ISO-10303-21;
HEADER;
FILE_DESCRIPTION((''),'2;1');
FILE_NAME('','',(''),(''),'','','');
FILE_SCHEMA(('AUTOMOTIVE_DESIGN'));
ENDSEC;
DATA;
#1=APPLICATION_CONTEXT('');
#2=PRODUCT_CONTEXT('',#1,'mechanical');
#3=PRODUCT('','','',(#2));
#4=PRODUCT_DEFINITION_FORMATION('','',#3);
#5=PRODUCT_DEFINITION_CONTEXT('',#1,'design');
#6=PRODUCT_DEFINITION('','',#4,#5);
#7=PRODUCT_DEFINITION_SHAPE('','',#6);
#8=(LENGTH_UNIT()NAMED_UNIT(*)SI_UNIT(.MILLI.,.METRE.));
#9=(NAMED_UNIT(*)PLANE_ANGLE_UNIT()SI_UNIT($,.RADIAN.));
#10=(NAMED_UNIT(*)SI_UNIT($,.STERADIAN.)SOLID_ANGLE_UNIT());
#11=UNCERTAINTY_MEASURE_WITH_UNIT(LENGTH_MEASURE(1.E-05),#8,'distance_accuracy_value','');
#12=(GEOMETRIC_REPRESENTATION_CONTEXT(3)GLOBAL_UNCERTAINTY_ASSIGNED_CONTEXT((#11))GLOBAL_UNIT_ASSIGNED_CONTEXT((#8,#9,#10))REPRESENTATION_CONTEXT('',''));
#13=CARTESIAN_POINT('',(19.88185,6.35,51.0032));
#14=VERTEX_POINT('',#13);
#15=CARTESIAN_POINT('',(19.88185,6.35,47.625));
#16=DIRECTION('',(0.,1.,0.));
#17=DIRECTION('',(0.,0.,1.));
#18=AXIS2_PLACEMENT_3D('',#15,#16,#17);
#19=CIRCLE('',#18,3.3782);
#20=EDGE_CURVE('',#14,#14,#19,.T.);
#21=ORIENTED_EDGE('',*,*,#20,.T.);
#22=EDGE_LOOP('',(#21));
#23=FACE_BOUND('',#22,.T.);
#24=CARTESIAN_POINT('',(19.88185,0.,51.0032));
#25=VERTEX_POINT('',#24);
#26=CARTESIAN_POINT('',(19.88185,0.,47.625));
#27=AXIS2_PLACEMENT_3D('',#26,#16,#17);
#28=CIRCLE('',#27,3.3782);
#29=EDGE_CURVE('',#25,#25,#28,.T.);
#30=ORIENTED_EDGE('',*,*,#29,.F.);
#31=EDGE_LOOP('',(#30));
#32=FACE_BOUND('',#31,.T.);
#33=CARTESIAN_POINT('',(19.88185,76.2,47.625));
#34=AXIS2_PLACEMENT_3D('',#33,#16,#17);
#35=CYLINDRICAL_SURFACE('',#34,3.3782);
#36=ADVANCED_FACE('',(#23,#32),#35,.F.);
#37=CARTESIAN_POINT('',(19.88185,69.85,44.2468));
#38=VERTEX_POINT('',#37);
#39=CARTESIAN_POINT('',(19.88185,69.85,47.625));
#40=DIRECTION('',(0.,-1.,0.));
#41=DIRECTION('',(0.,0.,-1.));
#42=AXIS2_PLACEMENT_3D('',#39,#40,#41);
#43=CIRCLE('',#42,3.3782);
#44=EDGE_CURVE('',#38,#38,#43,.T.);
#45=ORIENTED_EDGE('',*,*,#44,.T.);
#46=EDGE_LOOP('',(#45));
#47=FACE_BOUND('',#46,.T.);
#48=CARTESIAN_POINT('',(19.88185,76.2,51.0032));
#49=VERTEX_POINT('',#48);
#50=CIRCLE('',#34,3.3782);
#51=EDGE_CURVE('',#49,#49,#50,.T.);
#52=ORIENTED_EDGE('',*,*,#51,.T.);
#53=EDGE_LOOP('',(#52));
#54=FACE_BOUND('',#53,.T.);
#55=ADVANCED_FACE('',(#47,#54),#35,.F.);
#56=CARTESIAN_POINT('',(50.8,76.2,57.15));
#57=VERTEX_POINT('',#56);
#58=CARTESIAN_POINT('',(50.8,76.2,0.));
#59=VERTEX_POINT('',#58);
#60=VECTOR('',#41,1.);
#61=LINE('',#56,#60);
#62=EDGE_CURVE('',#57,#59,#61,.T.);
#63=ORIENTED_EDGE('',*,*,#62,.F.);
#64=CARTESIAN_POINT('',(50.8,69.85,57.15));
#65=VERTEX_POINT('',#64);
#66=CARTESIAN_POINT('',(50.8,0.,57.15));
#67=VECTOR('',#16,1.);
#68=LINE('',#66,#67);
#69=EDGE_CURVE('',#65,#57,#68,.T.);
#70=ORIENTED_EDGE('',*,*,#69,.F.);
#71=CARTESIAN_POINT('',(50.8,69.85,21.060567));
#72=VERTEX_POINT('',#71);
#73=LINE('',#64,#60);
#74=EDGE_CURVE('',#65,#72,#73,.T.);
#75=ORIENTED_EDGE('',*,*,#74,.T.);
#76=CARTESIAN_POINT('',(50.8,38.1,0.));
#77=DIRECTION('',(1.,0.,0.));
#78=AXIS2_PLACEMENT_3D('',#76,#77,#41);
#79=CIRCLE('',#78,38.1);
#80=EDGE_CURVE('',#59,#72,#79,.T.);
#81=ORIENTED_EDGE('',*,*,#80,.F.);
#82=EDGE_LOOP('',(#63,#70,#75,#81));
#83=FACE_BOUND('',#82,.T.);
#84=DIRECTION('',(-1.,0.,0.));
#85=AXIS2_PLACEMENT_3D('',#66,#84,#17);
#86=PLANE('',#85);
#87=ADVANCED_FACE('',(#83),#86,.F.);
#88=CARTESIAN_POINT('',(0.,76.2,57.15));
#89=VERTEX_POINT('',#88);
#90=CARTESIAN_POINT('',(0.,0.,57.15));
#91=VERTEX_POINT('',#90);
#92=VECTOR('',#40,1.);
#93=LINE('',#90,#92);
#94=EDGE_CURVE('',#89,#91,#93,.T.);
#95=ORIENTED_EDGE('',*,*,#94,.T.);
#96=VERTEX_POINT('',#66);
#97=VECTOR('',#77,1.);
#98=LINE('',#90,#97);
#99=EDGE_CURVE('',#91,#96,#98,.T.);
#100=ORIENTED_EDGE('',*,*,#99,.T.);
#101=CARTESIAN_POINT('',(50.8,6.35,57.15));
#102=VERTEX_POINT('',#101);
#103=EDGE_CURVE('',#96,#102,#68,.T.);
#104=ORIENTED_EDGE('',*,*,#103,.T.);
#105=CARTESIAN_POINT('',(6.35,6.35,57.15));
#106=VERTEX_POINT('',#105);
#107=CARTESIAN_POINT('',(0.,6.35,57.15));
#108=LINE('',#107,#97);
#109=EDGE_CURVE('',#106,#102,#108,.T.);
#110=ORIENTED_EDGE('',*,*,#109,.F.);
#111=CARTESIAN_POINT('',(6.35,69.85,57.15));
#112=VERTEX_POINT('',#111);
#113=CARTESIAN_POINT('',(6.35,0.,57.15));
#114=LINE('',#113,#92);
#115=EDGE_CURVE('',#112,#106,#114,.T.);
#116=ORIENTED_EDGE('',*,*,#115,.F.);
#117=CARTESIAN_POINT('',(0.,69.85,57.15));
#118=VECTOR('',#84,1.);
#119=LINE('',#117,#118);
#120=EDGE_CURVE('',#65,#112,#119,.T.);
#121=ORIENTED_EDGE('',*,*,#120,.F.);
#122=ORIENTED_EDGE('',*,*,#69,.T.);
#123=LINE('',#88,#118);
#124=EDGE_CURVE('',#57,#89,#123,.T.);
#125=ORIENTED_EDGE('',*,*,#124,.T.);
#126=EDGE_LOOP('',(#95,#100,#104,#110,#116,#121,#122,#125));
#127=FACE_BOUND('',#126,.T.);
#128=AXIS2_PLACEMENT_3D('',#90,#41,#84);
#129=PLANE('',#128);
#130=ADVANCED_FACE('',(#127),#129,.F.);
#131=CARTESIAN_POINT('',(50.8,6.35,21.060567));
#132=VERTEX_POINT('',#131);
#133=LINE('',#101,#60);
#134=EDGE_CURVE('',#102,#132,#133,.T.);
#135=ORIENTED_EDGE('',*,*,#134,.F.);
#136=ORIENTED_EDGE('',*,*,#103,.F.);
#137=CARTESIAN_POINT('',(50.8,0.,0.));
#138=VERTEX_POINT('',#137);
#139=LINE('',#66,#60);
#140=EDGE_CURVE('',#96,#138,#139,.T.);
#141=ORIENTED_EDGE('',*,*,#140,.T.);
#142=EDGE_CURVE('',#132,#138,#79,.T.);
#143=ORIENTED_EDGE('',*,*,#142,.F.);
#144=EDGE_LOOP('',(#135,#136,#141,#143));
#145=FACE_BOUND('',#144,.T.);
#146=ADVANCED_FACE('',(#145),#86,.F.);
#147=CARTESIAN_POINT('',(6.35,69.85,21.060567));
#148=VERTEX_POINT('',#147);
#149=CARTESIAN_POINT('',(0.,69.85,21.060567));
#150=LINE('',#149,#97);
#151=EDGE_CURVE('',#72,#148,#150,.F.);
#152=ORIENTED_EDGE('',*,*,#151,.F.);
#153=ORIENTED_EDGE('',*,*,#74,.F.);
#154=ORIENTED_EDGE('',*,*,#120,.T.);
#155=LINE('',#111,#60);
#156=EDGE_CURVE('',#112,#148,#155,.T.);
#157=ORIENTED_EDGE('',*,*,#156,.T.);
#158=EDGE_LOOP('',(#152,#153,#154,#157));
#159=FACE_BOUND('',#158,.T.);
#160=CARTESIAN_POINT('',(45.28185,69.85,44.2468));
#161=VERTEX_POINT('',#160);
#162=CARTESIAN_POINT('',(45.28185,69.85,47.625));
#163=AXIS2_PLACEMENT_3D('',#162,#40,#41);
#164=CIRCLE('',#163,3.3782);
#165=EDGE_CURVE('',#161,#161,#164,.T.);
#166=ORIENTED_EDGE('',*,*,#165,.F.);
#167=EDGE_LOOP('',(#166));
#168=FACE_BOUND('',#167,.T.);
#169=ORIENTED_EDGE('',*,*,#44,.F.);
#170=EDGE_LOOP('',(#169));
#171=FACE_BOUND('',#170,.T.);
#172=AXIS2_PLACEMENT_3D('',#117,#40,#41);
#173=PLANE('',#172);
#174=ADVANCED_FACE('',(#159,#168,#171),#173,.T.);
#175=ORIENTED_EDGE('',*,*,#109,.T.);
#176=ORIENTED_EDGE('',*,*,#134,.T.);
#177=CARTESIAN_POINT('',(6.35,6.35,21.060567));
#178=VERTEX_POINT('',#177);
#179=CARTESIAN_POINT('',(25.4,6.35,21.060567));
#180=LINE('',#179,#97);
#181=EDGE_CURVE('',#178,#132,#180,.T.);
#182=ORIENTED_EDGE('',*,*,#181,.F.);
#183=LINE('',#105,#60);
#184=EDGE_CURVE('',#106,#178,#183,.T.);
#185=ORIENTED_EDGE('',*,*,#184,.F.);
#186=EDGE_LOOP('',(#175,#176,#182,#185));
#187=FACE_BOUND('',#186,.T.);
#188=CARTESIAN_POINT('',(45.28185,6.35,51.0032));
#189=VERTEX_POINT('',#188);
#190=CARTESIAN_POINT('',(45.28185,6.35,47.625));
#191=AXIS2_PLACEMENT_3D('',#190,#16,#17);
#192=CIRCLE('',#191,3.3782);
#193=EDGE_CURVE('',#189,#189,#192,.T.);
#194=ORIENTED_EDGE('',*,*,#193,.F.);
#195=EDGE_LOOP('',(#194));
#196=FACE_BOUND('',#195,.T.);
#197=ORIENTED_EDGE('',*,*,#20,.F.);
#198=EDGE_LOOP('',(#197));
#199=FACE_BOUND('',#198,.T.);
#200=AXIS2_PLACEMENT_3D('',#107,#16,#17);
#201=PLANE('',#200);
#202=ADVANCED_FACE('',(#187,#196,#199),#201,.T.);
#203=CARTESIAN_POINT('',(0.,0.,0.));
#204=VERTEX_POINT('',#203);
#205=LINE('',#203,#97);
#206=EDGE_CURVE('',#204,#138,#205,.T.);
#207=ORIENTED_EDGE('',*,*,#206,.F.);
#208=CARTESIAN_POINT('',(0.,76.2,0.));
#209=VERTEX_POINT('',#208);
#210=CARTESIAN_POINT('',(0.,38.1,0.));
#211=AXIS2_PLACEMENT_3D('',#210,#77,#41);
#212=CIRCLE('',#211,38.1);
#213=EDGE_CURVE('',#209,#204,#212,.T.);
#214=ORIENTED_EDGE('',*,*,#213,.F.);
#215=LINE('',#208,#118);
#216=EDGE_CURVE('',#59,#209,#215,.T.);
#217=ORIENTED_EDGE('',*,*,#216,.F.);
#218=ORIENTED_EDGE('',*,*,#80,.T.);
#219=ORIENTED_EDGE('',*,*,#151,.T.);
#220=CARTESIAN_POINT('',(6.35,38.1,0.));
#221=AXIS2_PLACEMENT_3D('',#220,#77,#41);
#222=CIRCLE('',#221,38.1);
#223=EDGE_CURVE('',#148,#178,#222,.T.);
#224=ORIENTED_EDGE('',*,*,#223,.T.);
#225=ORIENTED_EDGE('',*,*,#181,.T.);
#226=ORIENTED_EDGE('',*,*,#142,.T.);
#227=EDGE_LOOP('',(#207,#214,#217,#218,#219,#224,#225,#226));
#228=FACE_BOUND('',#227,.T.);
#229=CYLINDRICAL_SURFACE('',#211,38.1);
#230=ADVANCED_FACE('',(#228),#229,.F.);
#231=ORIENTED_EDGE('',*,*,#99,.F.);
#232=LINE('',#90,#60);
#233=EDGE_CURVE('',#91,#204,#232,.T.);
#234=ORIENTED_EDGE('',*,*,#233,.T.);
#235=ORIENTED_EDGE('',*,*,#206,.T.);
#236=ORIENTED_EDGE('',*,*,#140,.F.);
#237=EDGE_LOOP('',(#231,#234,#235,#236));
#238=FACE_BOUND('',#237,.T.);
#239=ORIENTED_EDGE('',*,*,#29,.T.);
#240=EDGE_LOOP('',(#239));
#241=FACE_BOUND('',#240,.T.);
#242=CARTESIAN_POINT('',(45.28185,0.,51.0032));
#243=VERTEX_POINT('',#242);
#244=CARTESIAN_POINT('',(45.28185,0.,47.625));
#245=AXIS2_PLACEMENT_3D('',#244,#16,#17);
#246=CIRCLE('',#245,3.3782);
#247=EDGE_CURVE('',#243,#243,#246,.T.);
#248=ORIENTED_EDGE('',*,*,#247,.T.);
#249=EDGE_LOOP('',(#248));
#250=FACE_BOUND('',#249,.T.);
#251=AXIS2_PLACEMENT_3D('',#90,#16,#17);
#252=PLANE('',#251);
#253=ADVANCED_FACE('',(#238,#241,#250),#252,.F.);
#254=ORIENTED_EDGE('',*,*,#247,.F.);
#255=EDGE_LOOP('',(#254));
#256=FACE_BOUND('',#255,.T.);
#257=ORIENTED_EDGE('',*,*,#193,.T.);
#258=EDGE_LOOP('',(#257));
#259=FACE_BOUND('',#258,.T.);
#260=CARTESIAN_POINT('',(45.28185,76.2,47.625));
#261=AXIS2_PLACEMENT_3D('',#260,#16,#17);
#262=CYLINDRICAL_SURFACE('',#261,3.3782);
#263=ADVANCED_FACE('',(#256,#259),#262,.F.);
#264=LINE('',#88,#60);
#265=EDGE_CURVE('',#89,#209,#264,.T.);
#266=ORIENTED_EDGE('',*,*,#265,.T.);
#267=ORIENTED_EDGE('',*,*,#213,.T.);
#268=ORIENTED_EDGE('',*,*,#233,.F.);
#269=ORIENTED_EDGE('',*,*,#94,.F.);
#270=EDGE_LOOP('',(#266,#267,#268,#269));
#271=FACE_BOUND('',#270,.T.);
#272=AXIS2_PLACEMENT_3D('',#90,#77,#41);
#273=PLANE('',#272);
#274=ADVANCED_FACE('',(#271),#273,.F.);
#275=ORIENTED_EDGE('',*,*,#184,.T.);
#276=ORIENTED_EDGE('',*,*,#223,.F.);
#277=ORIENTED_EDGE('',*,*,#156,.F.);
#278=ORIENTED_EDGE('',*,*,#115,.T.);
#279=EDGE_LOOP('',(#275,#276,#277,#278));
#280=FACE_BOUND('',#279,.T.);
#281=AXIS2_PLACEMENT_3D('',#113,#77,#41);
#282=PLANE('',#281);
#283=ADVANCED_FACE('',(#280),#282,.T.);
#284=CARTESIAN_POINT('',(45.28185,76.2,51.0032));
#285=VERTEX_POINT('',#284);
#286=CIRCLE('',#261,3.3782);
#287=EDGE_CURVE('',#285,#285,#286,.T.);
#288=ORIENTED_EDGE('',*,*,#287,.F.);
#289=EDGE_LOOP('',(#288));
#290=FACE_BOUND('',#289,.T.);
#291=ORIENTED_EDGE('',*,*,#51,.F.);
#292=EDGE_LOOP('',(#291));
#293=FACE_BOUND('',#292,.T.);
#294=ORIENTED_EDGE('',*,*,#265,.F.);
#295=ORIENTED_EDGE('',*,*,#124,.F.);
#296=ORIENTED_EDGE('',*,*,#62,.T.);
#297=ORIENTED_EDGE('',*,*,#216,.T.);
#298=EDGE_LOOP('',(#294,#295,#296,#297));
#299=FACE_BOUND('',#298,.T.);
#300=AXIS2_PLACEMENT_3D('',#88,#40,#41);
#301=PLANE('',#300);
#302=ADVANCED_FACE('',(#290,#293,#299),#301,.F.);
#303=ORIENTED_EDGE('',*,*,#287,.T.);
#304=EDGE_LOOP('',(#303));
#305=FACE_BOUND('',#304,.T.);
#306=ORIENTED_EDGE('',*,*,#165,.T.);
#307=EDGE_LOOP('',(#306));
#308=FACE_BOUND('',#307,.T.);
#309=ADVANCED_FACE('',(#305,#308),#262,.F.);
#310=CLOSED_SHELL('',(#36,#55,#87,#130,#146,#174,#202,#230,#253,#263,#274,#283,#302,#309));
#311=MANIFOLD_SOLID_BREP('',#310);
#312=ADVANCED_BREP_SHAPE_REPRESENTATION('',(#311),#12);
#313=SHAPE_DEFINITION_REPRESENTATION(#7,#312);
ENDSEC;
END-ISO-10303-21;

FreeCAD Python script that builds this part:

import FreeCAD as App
import Part
import Sketcher
Q = App.Units.Quantity


def faces_at(feature, points):
    """Names of the faces that lie closest to the given points."""
    faces = feature.Shape.Faces
    near = lambda p: min(range(len(faces)), key=lambda i: faces[i].distToShape(Part.Vertex(*p))[0])
    return sorted({f"Face{near(p) + 1}" for p in points})


def add_polygon(sketch, points):
    """Adds a closed chain of lines whose ends are joined by coincident constraints."""
    first, n = sketch.GeometryCount, len(points)
    for a, b in zip(points, points[1:] + points[:1]):
        sketch.addGeometry(Part.LineSegment(App.Vector(*a, 0), App.Vector(*b, 0)), False)
    for i in range(n):
        sketch.addConstraint(Sketcher.Constraint("Coincident", first + i, 2, first + (i + 1) % n, 1))

doc = App.newDocument("Part")
body = doc.addObject("PartDesign::Body", "Body")

sketch1 = body.newObject("Sketcher::SketchObject", "Sketch")
sketch1.AttachmentSupport = (doc.getObject("XY_Plane"), [""])
sketch1.MapMode = "FlatFace"
add_polygon(sketch1, [(0, 76), (0, 0), (51, 0), (51, 76)])
sketch1.addConstraint([
    Sketcher.Constraint("Vertical", 0),
    Sketcher.Constraint("Horizontal", 1),
    Sketcher.Constraint("Vertical", 2),
    Sketcher.Constraint("Horizontal", 3),
    Sketcher.Constraint("Coincident", 0, 2, -1, 1),
    Sketcher.Constraint("DistanceX", 1, 1, 1, 2, Q("2 in")),
    Sketcher.Constraint("DistanceY", 0, 2, 0, 1, Q("3 in")),
])
pad1 = body.newObject("PartDesign::Pad", "Pad")
pad1.Profile = sketch1
pad1.Length = Q("2.25 in")

sketch2 = body.newObject("Sketcher::SketchObject", "Sketch001")
sketch2.AttachmentSupport = (doc.getObject("YZ_Plane"), [""])
sketch2.MapMode = "FlatFace"
sketch2.AttachmentOffset = App.Placement(App.Vector(0, 0, 2 * 25.4), App.Rotation())
sketch2.addGeometry(Part.Circle(App.Vector(38, 0, 0), App.Vector(0, 0, 1), 38), False)
sketch2.addConstraint([
    Sketcher.Constraint("PointOnObject", 0, 3, -1),
    Sketcher.Constraint("Diameter", 0, Q("3 in")),
    Sketcher.Constraint("DistanceX", -1, 1, 0, 3, Q("1.5 in")),
])
pocket1 = body.newObject("PartDesign::Pocket", "Pocket")
pocket1.Profile = sketch2
pocket1.Type = "ThroughAll"
doc.recompute()

thickness = body.newObject("PartDesign::Thickness", "Thickness")
thickness.Base = (pocket1, faces_at(pocket1, [(25.4, 38.1, 57.15), (25.4, 38.1, 38.1), (50.8, 22.86, 40.005)]))
thickness.Value = Q("0.25 in")
thickness.Reversed = True
thickness.Join = "Intersection"

sketch3 = body.newObject("Sketcher::SketchObject", "Sketch002")
sketch3.AttachmentSupport = (doc.getObject("XZ_Plane"), [""])
sketch3.MapMode = "FlatFace"
sketch3.AttachmentOffset = App.Placement(App.Vector(0, 0, -3 * 25.4), App.Rotation())
sketch3.addGeometry([
    Part.Circle(App.Vector(45.3, 47.6, 0), App.Vector(0, 0, 1), 3.4),
    Part.Circle(App.Vector(19.9, 47.6, 0), App.Vector(0, 0, 1), 3.4),
], False)
sketch3.addConstraint([
    Sketcher.Constraint("Equal", 0, 1),
    Sketcher.Constraint("Horizontal", 0, 3, 1, 3),
    Sketcher.Constraint("Diameter", 0, Q("0.266 in")),
    Sketcher.Constraint("DistanceX", 1, 3, 0, 3, Q("1 in")),
    Sketcher.Constraint("DistanceY", -1, 1, 0, 3, Q("1.875 in")),
    Sketcher.Constraint("DistanceX", -1, 1, 0, 3, Q("45.28185 mm")),
])
doc.recompute()
hole = body.newObject("PartDesign::Hole", "Hole")
hole.Profile = sketch3
hole.ThreadType = "None"
hole.Diameter = Q("0.266 in")
hole.DepthType = "ThroughAll"
hole.Reversed = True

doc.recompute()
